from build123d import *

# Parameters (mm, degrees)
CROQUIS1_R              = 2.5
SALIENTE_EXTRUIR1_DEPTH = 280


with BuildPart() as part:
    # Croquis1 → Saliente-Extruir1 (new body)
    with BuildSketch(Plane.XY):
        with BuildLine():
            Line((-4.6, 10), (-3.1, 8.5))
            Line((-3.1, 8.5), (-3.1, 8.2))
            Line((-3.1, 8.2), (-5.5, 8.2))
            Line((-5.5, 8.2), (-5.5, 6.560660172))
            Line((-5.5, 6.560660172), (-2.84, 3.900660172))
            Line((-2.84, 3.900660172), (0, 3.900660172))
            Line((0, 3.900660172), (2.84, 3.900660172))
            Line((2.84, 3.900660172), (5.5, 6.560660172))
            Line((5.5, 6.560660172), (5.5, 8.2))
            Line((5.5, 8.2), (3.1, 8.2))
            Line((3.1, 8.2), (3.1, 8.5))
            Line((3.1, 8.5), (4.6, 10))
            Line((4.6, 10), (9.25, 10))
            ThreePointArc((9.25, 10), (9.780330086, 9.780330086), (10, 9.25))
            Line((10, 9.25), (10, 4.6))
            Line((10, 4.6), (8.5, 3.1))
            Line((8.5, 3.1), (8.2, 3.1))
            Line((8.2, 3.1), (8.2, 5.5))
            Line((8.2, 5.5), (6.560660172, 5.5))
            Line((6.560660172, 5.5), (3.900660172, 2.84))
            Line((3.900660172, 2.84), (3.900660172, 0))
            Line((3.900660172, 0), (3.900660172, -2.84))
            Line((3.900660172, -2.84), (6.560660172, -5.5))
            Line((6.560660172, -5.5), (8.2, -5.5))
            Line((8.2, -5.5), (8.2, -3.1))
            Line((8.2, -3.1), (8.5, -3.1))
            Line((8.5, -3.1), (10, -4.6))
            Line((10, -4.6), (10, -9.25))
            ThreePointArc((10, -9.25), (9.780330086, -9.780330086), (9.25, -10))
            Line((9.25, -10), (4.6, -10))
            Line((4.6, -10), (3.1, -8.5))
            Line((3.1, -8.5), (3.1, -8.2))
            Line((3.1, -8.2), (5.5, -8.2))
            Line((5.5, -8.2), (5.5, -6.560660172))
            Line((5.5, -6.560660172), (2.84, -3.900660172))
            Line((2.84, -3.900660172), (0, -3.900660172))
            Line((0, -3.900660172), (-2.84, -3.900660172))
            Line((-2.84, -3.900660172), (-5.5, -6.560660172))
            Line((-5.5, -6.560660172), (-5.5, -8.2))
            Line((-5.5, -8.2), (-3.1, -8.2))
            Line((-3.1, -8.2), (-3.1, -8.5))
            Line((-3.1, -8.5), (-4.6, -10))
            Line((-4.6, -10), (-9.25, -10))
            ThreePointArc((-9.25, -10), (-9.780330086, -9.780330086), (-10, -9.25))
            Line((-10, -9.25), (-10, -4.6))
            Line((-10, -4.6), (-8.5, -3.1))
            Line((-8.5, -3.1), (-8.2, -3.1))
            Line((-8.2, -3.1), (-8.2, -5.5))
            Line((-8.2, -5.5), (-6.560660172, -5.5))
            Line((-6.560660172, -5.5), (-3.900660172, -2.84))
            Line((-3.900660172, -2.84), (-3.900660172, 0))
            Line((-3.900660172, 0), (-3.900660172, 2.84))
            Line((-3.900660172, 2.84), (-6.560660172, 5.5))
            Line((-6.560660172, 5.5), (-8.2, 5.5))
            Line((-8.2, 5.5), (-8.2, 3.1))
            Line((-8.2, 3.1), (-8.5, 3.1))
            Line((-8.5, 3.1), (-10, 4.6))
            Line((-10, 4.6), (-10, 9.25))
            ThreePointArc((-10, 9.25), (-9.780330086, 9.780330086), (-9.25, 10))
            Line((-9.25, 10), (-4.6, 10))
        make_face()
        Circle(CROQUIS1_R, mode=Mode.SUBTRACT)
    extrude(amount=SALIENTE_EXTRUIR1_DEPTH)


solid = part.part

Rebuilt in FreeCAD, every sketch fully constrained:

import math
import FreeCAD as App
import Part
import Sketcher
from FreeCAD import Vector
Q = App.Units.Quantity

doc = App.newDocument("Part")
params = doc.addObject("Spreadsheet::Sheet", "Params")
for row, (alias, value) in enumerate([
    ("sketch1_diameter", "5 mm"),
    ("sketch1_radius", "0.75 mm"),
    ("sketch1_width", "0.3 mm"),
    ("sketch1_width2", "2.4 mm"),
    ("sketch1_width3", "4.65 mm"),
    ("pad1_length", "280 mm"),
], start=1):
    params.set(f"A{row}", alias)
    params.set(f"B{row}", "=" + value)
    params.setAlias(f"B{row}", alias)

body = doc.addObject("PartDesign::Body", "Body")

# Sketch on XY plane
sketch1 = body.newObject("Sketcher::SketchObject", "Sketch")
sketch1.AttachmentSupport = (doc.getObject("XY_Plane"), [""])
sketch1.MapMode = "FlatFace"
sketch1.addGeometry([
    Part.LineSegment(Vector(-3.1, 8.5, 0), Vector(-4.6, 10, 0)),  # 0
    Part.LineSegment(Vector(-4.6, 10, 0), Vector(-9.25, 10, 0)),  # 1
    Part.ArcOfCircle(Part.Circle(Vector(-9.25, 9.25, 0), Vector(0, 0, 1), 0.75), math.radians(90), math.radians(180)),  # 2
    Part.LineSegment(Vector(-10, 9.25, 0), Vector(-10, 4.6, 0)),  # 3
    Part.LineSegment(Vector(-10, 4.6, 0), Vector(-8.5, 3.1, 0)),  # 4
    Part.LineSegment(Vector(-8.5, 3.1, 0), Vector(-8.2, 3.1, 0)),  # 5
    Part.LineSegment(Vector(-8.2, 3.1, 0), Vector(-8.2, 5.5, 0)),  # 6
    Part.LineSegment(Vector(-8.2, 5.5, 0), Vector(-6.56, 5.5, 0)),  # 7
    Part.LineSegment(Vector(-6.56, 5.5, 0), Vector(-3.9, 2.84, 0)),  # 8
    Part.LineSegment(Vector(-3.9, 2.84, 0), Vector(-3.9, -2.84, 0)),  # 9
    Part.LineSegment(Vector(-3.9, -2.84, 0), Vector(-6.56, -5.5, 0)),  # 10
    Part.LineSegment(Vector(-6.56, -5.5, 0), Vector(-8.2, -5.5, 0)),  # 11
    Part.LineSegment(Vector(-8.2, -5.5, 0), Vector(-8.2, -3.1, 0)),  # 12
    Part.LineSegment(Vector(-8.2, -3.1, 0), Vector(-8.5, -3.1, 0)),  # 13
    Part.LineSegment(Vector(-8.5, -3.1, 0), Vector(-10, -4.6, 0)),  # 14
    Part.LineSegment(Vector(-10, -4.6, 0), Vector(-10, -9.25, 0)),  # 15
    Part.ArcOfCircle(Part.Circle(Vector(-9.25, -9.25, 0), Vector(0, 0, 1), 0.75), math.radians(180), math.radians(270)),  # 16
    Part.LineSegment(Vector(-9.25, -10, 0), Vector(-4.6, -10, 0)),  # 17
    Part.LineSegment(Vector(-4.6, -10, 0), Vector(-3.1, -8.5, 0)),  # 18
    Part.LineSegment(Vector(-3.1, -8.5, 0), Vector(-3.1, -8.2, 0)),  # 19
    Part.LineSegment(Vector(-3.1, -8.2, 0), Vector(-5.5, -8.2, 0)),  # 20
    Part.LineSegment(Vector(-5.5, -8.2, 0), Vector(-5.5, -6.56, 0)),  # 21
    Part.LineSegment(Vector(-5.5, -6.56, 0), Vector(-2.84, -3.9, 0)),  # 22
    Part.LineSegment(Vector(-2.84, -3.9, 0), Vector(2.84, -3.9, 0)),  # 23
    Part.LineSegment(Vector(2.84, -3.9, 0), Vector(5.5, -6.56, 0)),  # 24
    Part.LineSegment(Vector(5.5, -6.56, 0), Vector(5.5, -8.2, 0)),  # 25
    Part.LineSegment(Vector(5.5, -8.2, 0), Vector(3.1, -8.2, 0)),  # 26
    Part.LineSegment(Vector(3.1, -8.2, 0), Vector(3.1, -8.5, 0)),  # 27
    Part.LineSegment(Vector(3.1, -8.5, 0), Vector(4.6, -10, 0)),  # 28
    Part.LineSegment(Vector(4.6, -10, 0), Vector(9.25, -10, 0)),  # 29
    Part.ArcOfCircle(Part.Circle(Vector(9.25, -9.25, 0), Vector(0, 0, 1), 0.75), math.radians(-90), math.radians(0)),  # 30
    Part.LineSegment(Vector(10, -9.25, 0), Vector(10, -4.6, 0)),  # 31
    Part.LineSegment(Vector(10, -4.6, 0), Vector(8.5, -3.1, 0)),  # 32
    Part.LineSegment(Vector(8.5, -3.1, 0), Vector(8.2, -3.1, 0)),  # 33
    Part.LineSegment(Vector(8.2, -3.1, 0), Vector(8.2, -5.5, 0)),  # 34
    Part.LineSegment(Vector(8.2, -5.5, 0), Vector(6.56, -5.5, 0)),  # 35
    Part.LineSegment(Vector(6.56, -5.5, 0), Vector(3.9, -2.84, 0)),  # 36
    Part.LineSegment(Vector(3.9, -2.84, 0), Vector(3.9, 2.84, 0)),  # 37
    Part.LineSegment(Vector(3.9, 2.84, 0), Vector(6.56, 5.5, 0)),  # 38
    Part.LineSegment(Vector(6.56, 5.5, 0), Vector(8.2, 5.5, 0)),  # 39
    Part.LineSegment(Vector(8.2, 5.5, 0), Vector(8.2, 3.1, 0)),  # 40
    Part.LineSegment(Vector(8.2, 3.1, 0), Vector(8.5, 3.1, 0)),  # 41
    Part.LineSegment(Vector(8.5, 3.1, 0), Vector(10, 4.6, 0)),  # 42
    Part.LineSegment(Vector(10, 4.6, 0), Vector(10, 9.25, 0)),  # 43
    Part.ArcOfCircle(Part.Circle(Vector(9.25, 9.25, 0), Vector(0, 0, 1), 0.75), math.radians(0), math.radians(90)),  # 44
    Part.LineSegment(Vector(9.25, 10, 0), Vector(4.6, 10, 0)),  # 45
    Part.LineSegment(Vector(4.6, 10, 0), Vector(3.1, 8.5, 0)),  # 46
    Part.LineSegment(Vector(3.1, 8.5, 0), Vector(3.1, 8.2, 0)),  # 47
    Part.LineSegment(Vector(3.1, 8.2, 0), Vector(5.5, 8.2, 0)),  # 48
    Part.LineSegment(Vector(5.5, 8.2, 0), Vector(5.5, 6.56, 0)),  # 49
    Part.LineSegment(Vector(5.5, 6.56, 0), Vector(2.84, 3.9, 0)),  # 50
    Part.LineSegment(Vector(2.84, 3.9, 0), Vector(-2.84, 3.9, 0)),  # 51
    Part.LineSegment(Vector(-2.84, 3.9, 0), Vector(-5.5, 6.56, 0)),  # 52
    Part.LineSegment(Vector(-5.5, 6.56, 0), Vector(-5.5, 8.2, 0)),  # 53
    Part.LineSegment(Vector(-5.5, 8.2, 0), Vector(-3.1, 8.2, 0)),  # 54
    Part.LineSegment(Vector(-3.1, 8.2, 0), Vector(-3.1, 8.5, 0)),  # 55
    Part.Circle(Vector(0, 0, 0), Vector(0, 0, 1), 2.5),  # 56
], False)
sketch1.addConstraint([
    Sketcher.Constraint("Coincident", 0, 2, 1, 1),
    Sketcher.Constraint("Tangent", 1, 2, 2, 1),
    Sketcher.Constraint("Tangent", 2, 2, 3, 1),
    Sketcher.Constraint("Coincident", 3, 2, 4, 1),
    Sketcher.Constraint("Coincident", 4, 2, 5, 1),
    Sketcher.Constraint("Coincident", 5, 2, 6, 1),
    Sketcher.Constraint("Coincident", 6, 2, 7, 1),
    Sketcher.Constraint("Coincident", 7, 2, 8, 1),
    Sketcher.Constraint("Coincident", 8, 2, 9, 1),
    Sketcher.Constraint("Coincident", 9, 2, 10, 1),
    Sketcher.Constraint("Coincident", 10, 2, 11, 1),
    Sketcher.Constraint("Coincident", 11, 2, 12, 1),
    Sketcher.Constraint("Coincident", 12, 2, 13, 1),
    Sketcher.Constraint("Coincident", 13, 2, 14, 1),
    Sketcher.Constraint("Coincident", 14, 2, 15, 1),
    Sketcher.Constraint("Tangent", 15, 2, 16, 1),
    Sketcher.Constraint("Tangent", 16, 2, 17, 1),
    Sketcher.Constraint("Coincident", 17, 2, 18, 1),
    Sketcher.Constraint("Coincident", 18, 2, 19, 1),
    Sketcher.Constraint("Coincident", 19, 2, 20, 1),
    Sketcher.Constraint("Coincident", 20, 2, 21, 1),
    Sketcher.Constraint("Coincident", 21, 2, 22, 1),
    Sketcher.Constraint("Coincident", 22, 2, 23, 1),
    Sketcher.Constraint("Coincident", 23, 2, 24, 1),
    Sketcher.Constraint("Coincident", 24, 2, 25, 1),
    Sketcher.Constraint("Coincident", 25, 2, 26, 1),
    Sketcher.Constraint("Coincident", 26, 2, 27, 1),
    Sketcher.Constraint("Coincident", 27, 2, 28, 1),
    Sketcher.Constraint("Coincident", 28, 2, 29, 1),
    Sketcher.Constraint("Tangent", 29, 2, 30, 1),
    Sketcher.Constraint("Tangent", 30, 2, 31, 1),
    Sketcher.Constraint("Coincident", 31, 2, 32, 1),
    Sketcher.Constraint("Coincident", 32, 2, 33, 1),
    Sketcher.Constraint("Coincident", 33, 2, 34, 1),
    Sketcher.Constraint("Coincident", 34, 2, 35, 1),
    Sketcher.Constraint("Coincident", 35, 2, 36, 1),
    Sketcher.Constraint("Coincident", 36, 2, 37, 1),
    Sketcher.Constraint("Coincident", 37, 2, 38, 1),
    Sketcher.Constraint("Coincident", 38, 2, 39, 1),
    Sketcher.Constraint("Coincident", 39, 2, 40, 1),
    Sketcher.Constraint("Coincident", 40, 2, 41, 1),
    Sketcher.Constraint("Coincident", 41, 2, 42, 1),
    Sketcher.Constraint("Coincident", 42, 2, 43, 1),
    Sketcher.Constraint("Tangent", 43, 2, 44, 1),
    Sketcher.Constraint("Tangent", 44, 2, 45, 1),
    Sketcher.Constraint("Coincident", 45, 2, 46, 1),
    Sketcher.Constraint("Coincident", 46, 2, 47, 1),
    Sketcher.Constraint("Coincident", 47, 2, 48, 1),
    Sketcher.Constraint("Coincident", 48, 2, 49, 1),
    Sketcher.Constraint("Coincident", 49, 2, 50, 1),
    Sketcher.Constraint("Coincident", 50, 2, 51, 1),
    Sketcher.Constraint("Coincident", 51, 2, 52, 1),
    Sketcher.Constraint("Coincident", 52, 2, 53, 1),
    Sketcher.Constraint("Coincident", 53, 2, 54, 1),
    Sketcher.Constraint("Coincident", 54, 2, 55, 1),
    Sketcher.Constraint("Coincident", 55, 2, 0, 1),
    Sketcher.Constraint("Horizontal", 1),
    Sketcher.Constraint("Vertical", 3),
    Sketcher.Constraint("Horizontal", 5),
    Sketcher.Constraint("Vertical", 6),
    Sketcher.Constraint("Horizontal", 7),
    Sketcher.Constraint("Vertical", 9),
    Sketcher.Constraint("Horizontal", 11),
    Sketcher.Constraint("Vertical", 12),
    Sketcher.Constraint("Horizontal", 13),
    Sketcher.Constraint("Vertical", 15),
    Sketcher.Constraint("Horizontal", 17),
    Sketcher.Constraint("Vertical", 19),
    Sketcher.Constraint("Horizontal", 20),
    Sketcher.Constraint("Vertical", 21),
    Sketcher.Constraint("Horizontal", 23),
    Sketcher.Constraint("Vertical", 25),
    Sketcher.Constraint("Horizontal", 26),
    Sketcher.Constraint("Vertical", 27),
    Sketcher.Constraint("Horizontal", 29),
    Sketcher.Constraint("Vertical", 31),
    Sketcher.Constraint("Horizontal", 33),
    Sketcher.Constraint("Vertical", 34),
    Sketcher.Constraint("Horizontal", 35),
    Sketcher.Constraint("Vertical", 37),
    Sketcher.Constraint("Horizontal", 39),
    Sketcher.Constraint("Vertical", 40),
    Sketcher.Constraint("Horizontal", 41),
    Sketcher.Constraint("Vertical", 43),
    Sketcher.Constraint("Horizontal", 45),
    Sketcher.Constraint("Vertical", 47),
    Sketcher.Constraint("Horizontal", 48),
    Sketcher.Constraint("Vertical", 49),
    Sketcher.Constraint("Horizontal", 51),
    Sketcher.Constraint("Vertical", 53),
    Sketcher.Constraint("Horizontal", 54),
    Sketcher.Constraint("Vertical", 55),
    Sketcher.Constraint("Coincident", 56, 3, -1, 1),
    Sketcher.Constraint("Equal", 2, 16),
    Sketcher.Constraint("Equal", 16, 30),
    Sketcher.Constraint("Equal", 30, 44),
    Sketcher.Constraint("Symmetric", 2, 3, 30, 3, -1, 1),
    Sketcher.Constraint("Symmetric", 16, 3, 44, 3, -1, 1),
    Sketcher.Constraint("Symmetric", 4, 2, 32, 2, -1, 1),
    Sketcher.Constraint("Symmetric", 6, 2, 34, 2, -1, 1),
    Sketcher.Constraint("Symmetric", 8, 2, 36, 2, -1, 1),
    Sketcher.Constraint("Symmetric", 10, 2, 38, 2, -1, 1),
    Sketcher.Constraint("Symmetric", 12, 2, 40, 2, -1, 1),
    Sketcher.Constraint("Symmetric", 18, 2, 46, 2, -1, 1),
    Sketcher.Constraint("Symmetric", 20, 2, 48, 2, -1, 1),
    Sketcher.Constraint("Symmetric", 22, 2, 50, 2, -1, 1),
    Sketcher.Constraint("Symmetric", 24, 2, 52, 2, -1, 1),
    Sketcher.Constraint("Symmetric", 26, 2, 54, 2, -1, 1),
    Sketcher.Constraint("Symmetric", 16, 3, 30, 3, -2),
    Sketcher.Constraint("Symmetric", 21, 2, 24, 2, -2),
    Sketcher.Constraint("Symmetric", 19, 2, 26, 2, -2),
    Sketcher.Constraint("Symmetric", 13, 2, 32, 2, -2),
    Sketcher.Constraint("Symmetric", 11, 2, 34, 2, -2),
    Sketcher.Constraint("Parallel", 0, 4),
    Sketcher.Constraint("Parallel", 4, 8),
    Sketcher.Constraint("Perpendicular", 8, 10),
    Sketcher.Constraint("Parallel", 10, 14),
    Sketcher.Constraint("Parallel", 14, 18),
    Sketcher.Constraint("Parallel", 18, 22),
    Sketcher.Constraint("Perpendicular", 22, 24),
    Sketcher.Constraint("Parallel", 24, 28),
    Sketcher.Constraint("Parallel", 28, 32),
    Sketcher.Constraint("Parallel", 32, 36),
    Sketcher.Constraint("Perpendicular", 36, 38),
    Sketcher.Constraint("Parallel", 38, 42),
    Sketcher.Constraint("Parallel", 42, 46),
    Sketcher.Constraint("Parallel", 46, 50),
    Sketcher.Constraint("Perpendicular", 50, 52),
    Sketcher.Constraint("Horizontal", 18, 2, 27, 2),
    Sketcher.Constraint("Horizontal", 14, 2, 31, 2),
    Sketcher.Constraint("Horizontal", 9, 2, 36, 2),
    Sketcher.Constraint("Horizontal", 3, 2, 42, 2),
    Sketcher.Constraint("Horizontal", 46, 2, 55, 2),
    Sketcher.Constraint("Equal", 45, 3),
    Sketcher.Constraint("Equal", 54, 6),
    Sketcher.Constraint("Equal", 51, 9),
    Sketcher.Constraint("Equal", 41, 19),
    Sketcher.Constraint("Equal", 39, 21),
    Sketcher.Constraint("Equal", 0, 4),
    Sketcher.Constraint("Equal", 10, 22),
    Sketcher.Constraint("Diameter", 56, Q("5 mm")),
    Sketcher.Constraint("Radius", 2, Q("0.75 mm")),
    Sketcher.Constraint("DistanceX", 5, 1, 5, 2, Q("0.3 mm")),
    Sketcher.Constraint("DistanceX", 20, 2, 20, 1, Q("2.4 mm")),
    Sketcher.Constraint("DistanceY", -1, 1, 0, 2, Q("10 mm")),
    Sketcher.Constraint("DistanceX", 1, 2, 1, 1, Q("4.65 mm")),
    Sketcher.Constraint("DistanceX", 23, 1, 23, 2, Q("5.68 mm")),
    Sketcher.Constraint("DistanceX", 4, 2, -1, 1, Q("8.5 mm")),
    Sketcher.Constraint("DistanceX", 7, 1, 7, 2, Q("1.63934 mm")),
])
sketch1.setExpression("Constraints[140]", "Params.sketch1_diameter")
sketch1.setExpression("Constraints[141]", "Params.sketch1_radius")
sketch1.setExpression("Constraints[142]", "Params.sketch1_width")
sketch1.setExpression("Constraints[143]", "Params.sketch1_width2")
sketch1.setExpression("Constraints[145]", "Params.sketch1_width3")
pad1 = body.newObject("PartDesign::Pad", "Pad")
pad1.Profile = sketch1
pad1.setExpression("Length", "Params.pad1_length")

doc.recompute()
